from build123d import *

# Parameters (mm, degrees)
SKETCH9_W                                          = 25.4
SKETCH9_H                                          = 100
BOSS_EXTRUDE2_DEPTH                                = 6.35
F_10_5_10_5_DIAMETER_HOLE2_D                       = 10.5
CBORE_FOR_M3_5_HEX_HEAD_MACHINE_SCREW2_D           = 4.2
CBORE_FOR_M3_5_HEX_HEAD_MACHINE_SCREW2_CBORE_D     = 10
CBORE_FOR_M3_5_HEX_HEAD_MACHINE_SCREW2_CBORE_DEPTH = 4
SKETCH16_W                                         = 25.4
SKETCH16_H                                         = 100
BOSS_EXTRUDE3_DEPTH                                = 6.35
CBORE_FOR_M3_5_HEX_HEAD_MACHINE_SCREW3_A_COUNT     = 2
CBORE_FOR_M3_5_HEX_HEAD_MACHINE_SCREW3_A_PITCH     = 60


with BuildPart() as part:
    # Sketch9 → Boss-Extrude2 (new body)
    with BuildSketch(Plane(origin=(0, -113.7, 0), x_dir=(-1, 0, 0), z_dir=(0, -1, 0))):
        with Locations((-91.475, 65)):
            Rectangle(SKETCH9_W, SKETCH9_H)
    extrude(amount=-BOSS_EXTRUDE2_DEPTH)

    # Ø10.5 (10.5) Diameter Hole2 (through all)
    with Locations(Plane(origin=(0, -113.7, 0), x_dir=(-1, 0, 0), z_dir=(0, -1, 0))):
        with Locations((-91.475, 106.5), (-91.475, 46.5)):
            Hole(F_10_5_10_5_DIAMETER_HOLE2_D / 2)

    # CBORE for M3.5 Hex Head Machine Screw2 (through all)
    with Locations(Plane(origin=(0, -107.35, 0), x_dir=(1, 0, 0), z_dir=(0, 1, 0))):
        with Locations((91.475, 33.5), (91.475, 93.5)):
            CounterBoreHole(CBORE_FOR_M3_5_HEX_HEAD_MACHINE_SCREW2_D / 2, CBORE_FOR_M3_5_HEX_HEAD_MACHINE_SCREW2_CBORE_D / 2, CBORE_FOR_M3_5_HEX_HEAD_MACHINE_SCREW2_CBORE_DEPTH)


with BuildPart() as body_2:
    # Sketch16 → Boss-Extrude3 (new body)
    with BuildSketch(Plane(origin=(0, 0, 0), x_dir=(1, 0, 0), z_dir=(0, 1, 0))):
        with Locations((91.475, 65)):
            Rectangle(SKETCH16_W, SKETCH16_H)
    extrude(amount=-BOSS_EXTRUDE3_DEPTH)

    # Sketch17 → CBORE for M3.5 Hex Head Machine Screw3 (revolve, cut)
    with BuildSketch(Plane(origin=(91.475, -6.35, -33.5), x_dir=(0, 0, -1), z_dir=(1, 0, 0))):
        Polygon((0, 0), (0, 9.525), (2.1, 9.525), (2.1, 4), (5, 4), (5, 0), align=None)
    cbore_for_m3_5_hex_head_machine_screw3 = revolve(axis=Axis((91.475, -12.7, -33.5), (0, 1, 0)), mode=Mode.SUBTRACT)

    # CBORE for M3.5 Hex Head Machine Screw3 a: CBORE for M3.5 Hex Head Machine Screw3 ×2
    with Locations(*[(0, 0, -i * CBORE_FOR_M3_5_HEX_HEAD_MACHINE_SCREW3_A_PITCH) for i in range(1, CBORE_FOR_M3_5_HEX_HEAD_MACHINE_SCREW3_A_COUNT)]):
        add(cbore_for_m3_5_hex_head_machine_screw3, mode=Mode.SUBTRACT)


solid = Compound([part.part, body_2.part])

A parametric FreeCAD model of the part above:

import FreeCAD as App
import Part
import Sketcher


def add_polygon(sketch, points):
    """Adds a closed chain of lines whose ends are joined by coincident constraints."""
    first, n = sketch.GeometryCount, len(points)
    for a, b in zip(points, points[1:] + points[:1]):
        sketch.addGeometry(Part.LineSegment(App.Vector(*a, 0), App.Vector(*b, 0)), False)
    for i in range(n):
        sketch.addConstraint(Sketcher.Constraint("Coincident", first + i, 2, first + (i + 1) % n, 1))

doc = App.newDocument("Part")
body = doc.addObject("PartDesign::Body", "Body")

# Sketch on XZ plane
sketch1 = body.newObject("Sketcher::SketchObject", "Sketch")
sketch1.AttachmentSupport = (doc.getObject("XZ_Plane"), [""])
sketch1.MapMode = "FlatFace"
sketch1.AttachmentOffset = App.Placement(App.Vector(0, 0, 113.7), App.Rotation())
add_polygon(sketch1, [(104.175, -115), (104.175, -15), (78.775, -15), (78.775, -115)])  # lines 0-3
sketch1.addConstraint([
    Sketcher.Constraint("Vertical", 0),
    Sketcher.Constraint("Horizontal", 1),
    Sketcher.Constraint("Vertical", 2),
    Sketcher.Constraint("Horizontal", 3),
    Sketcher.Constraint("DistanceY", 0, 1, 0, 2, 100.0),
    Sketcher.Constraint("DistanceX", 1, 2, 1, 1, 25.4),
    Sketcher.Constraint("DistanceY", 0, 2, -1, 1, 15.0),
    Sketcher.Constraint("DistanceX", -1, 1, 0, 2, 104.175),
])
pad1 = body.newObject("PartDesign::Pad", "Pad")
pad1.Profile = sketch1
pad1.Length = 6.35
pad1.Reversed = True

# Sketch on XZ plane
sketch2 = body.newObject("Sketcher::SketchObject", "Sketch001")
sketch2.AttachmentSupport = (doc.getObject("XZ_Plane"), [""])
sketch2.MapMode = "FlatFace"
sketch2.AttachmentOffset = App.Placement(App.Vector(0, 0, 113.7), App.Rotation())
sketch2.addGeometry([
    Part.Circle(App.Vector(91.475, -106.5, 0), App.Vector(0, 0, 1), 5.25),
    Part.Circle(App.Vector(91.475, -46.5, 0), App.Vector(0, 0, 1), 5.25),
], False)
sketch2.addConstraint([
    Sketcher.Constraint("Equal", 0, 1),
    Sketcher.Constraint("Vertical", 0, 3, 1, 3),
    Sketcher.Constraint("Diameter", 0, 10.5),
    Sketcher.Constraint("DistanceY", 0, 3, 1, 3, 60.0),
    Sketcher.Constraint("DistanceY", 0, 3, -1, 1, 106.5),
    Sketcher.Constraint("DistanceX", -1, 1, 0, 3, 91.475),
])
doc.recompute()
hole = body.newObject("PartDesign::Hole", "Hole")
hole.Profile = sketch2
hole.ThreadType = "None"
hole.Diameter = 10.5
hole.DepthType = "ThroughAll"

# Sketch on XZ plane
sketch3 = body.newObject("Sketcher::SketchObject", "Sketch002")
sketch3.AttachmentSupport = (doc.getObject("XZ_Plane"), [""])
sketch3.MapMode = "FlatFace"
sketch3.AttachmentOffset = App.Placement(App.Vector(0, 0, 107.35), App.Rotation())
sketch3.addGeometry([
    Part.Circle(App.Vector(91.475, -33.5, 0), App.Vector(0, 0, 1), 2.1),
    Part.Circle(App.Vector(91.475, -93.5, 0), App.Vector(0, 0, 1), 2.1),
], False)
sketch3.addConstraint([
    Sketcher.Constraint("Equal", 0, 1),
    Sketcher.Constraint("Vertical", 0, 3, 1, 3),
    Sketcher.Constraint("Diameter", 0, 4.2),
    Sketcher.Constraint("DistanceY", 1, 3, 0, 3, 60.0),
    Sketcher.Constraint("DistanceY", 0, 3, -1, 1, 33.5),
    Sketcher.Constraint("DistanceX", -1, 1, 0, 3, 91.475),
])
doc.recompute()
hole2 = body.newObject("PartDesign::Hole", "Hole001")
hole2.Profile = sketch3
hole2.ThreadType = "None"
hole2.Diameter = 4.2
hole2.DepthType = "ThroughAll"
hole2.HoleCutType = "Counterbore"
hole2.HoleCutDiameter = 10
hole2.HoleCutDepth = 4
hole2.Reversed = True
body2 = doc.addObject("PartDesign::Body", "Body001")

# Sketch on XZ plane
sketch4 = body2.newObject("Sketcher::SketchObject", "Sketch003")
sketch4.AttachmentSupport = (doc.getObject("XZ_Plane001"), [""])
sketch4.MapMode = "FlatFace"
add_polygon(sketch4, [(78.775, -115), (78.775, -15), (104.175, -15), (104.175, -115)])  # lines 0-3
sketch4.addConstraint([
    Sketcher.Constraint("Vertical", 0),
    Sketcher.Constraint("Horizontal", 1),
    Sketcher.Constraint("Vertical", 2),
    Sketcher.Constraint("Horizontal", 3),
    Sketcher.Constraint("DistanceY", 0, 1, 0, 2, 100.0),
    Sketcher.Constraint("DistanceX", 1, 1, 1, 2, 25.4),
    Sketcher.Constraint("DistanceY", 0, 2, -1, 1, 15.0),
    Sketcher.Constraint("DistanceX", -1, 1, 0, 2, 78.775),
])
pad2 = body2.newObject("PartDesign::Pad", "Pad001")
pad2.Profile = sketch4
pad2.Length = 6.35

# Sketch on YZ plane
sketch5 = body2.newObject("Sketcher::SketchObject", "Sketch004")
sketch5.AttachmentSupport = (doc.getObject("YZ_Plane001"), [""])
sketch5.MapMode = "FlatFace"
sketch5.AttachmentOffset = App.Placement(App.Vector(0, 0, 91.475), App.Rotation())
add_polygon(sketch5, [(3.175, -33.5), (-6.35, -33.5), (-6.35, -38.5), (-2.35, -38.5), (-2.35, -35.6), (3.175, -35.6)])  # lines 0-5
sketch5.addGeometry(Part.LineSegment(App.Vector(-6.35, -33.5, 0), App.Vector(3.175, -33.5, 0)), True)  # axis
sketch5.addConstraint([
    Sketcher.Constraint("Horizontal", 0),
    Sketcher.Constraint("Vertical", 1),
    Sketcher.Constraint("Horizontal", 2),
    Sketcher.Constraint("Vertical", 3),
    Sketcher.Constraint("Horizontal", 4),
    Sketcher.Constraint("Vertical", 5),
    Sketcher.Constraint("Horizontal", 6),
    Sketcher.Constraint("Coincident", 6, 1, 0, 2),
    Sketcher.Constraint("Vertical", 4, 2, 6, 2),
    Sketcher.Constraint("DistanceX", 2, 1, 2, 2, 4.0),
    Sketcher.Constraint("DistanceY", 1, 2, 1, 1, 5.0),
    Sketcher.Constraint("DistanceY", 3, 1, 3, 2, 2.9),
    Sketcher.Constraint("DistanceY", 0, 2, -1, 1, 33.5),
    Sketcher.Constraint("DistanceX", 0, 2, 0, 1, 9.525),
    Sketcher.Constraint("DistanceX", 0, 2, -1, 1, 6.35),
])
groove = body2.newObject("PartDesign::Groove", "Groove")
groove.Profile = sketch5
groove.ReferenceAxis = (sketch5, ["Axis0"])
groove.Angle = 360
doc.recompute()

linearpattern = body2.newObject("PartDesign::LinearPattern", "LinearPattern")
linearpattern.Originals = [groove]
linearpattern.Direction = (doc.getObject("Z_Axis001"), [""])
linearpattern.Mode = "offset"
linearpattern.Offset = 60
linearpattern.Occurrences = 2
linearpattern.Reversed = True
body2.Tip = linearpattern

doc.recompute()
